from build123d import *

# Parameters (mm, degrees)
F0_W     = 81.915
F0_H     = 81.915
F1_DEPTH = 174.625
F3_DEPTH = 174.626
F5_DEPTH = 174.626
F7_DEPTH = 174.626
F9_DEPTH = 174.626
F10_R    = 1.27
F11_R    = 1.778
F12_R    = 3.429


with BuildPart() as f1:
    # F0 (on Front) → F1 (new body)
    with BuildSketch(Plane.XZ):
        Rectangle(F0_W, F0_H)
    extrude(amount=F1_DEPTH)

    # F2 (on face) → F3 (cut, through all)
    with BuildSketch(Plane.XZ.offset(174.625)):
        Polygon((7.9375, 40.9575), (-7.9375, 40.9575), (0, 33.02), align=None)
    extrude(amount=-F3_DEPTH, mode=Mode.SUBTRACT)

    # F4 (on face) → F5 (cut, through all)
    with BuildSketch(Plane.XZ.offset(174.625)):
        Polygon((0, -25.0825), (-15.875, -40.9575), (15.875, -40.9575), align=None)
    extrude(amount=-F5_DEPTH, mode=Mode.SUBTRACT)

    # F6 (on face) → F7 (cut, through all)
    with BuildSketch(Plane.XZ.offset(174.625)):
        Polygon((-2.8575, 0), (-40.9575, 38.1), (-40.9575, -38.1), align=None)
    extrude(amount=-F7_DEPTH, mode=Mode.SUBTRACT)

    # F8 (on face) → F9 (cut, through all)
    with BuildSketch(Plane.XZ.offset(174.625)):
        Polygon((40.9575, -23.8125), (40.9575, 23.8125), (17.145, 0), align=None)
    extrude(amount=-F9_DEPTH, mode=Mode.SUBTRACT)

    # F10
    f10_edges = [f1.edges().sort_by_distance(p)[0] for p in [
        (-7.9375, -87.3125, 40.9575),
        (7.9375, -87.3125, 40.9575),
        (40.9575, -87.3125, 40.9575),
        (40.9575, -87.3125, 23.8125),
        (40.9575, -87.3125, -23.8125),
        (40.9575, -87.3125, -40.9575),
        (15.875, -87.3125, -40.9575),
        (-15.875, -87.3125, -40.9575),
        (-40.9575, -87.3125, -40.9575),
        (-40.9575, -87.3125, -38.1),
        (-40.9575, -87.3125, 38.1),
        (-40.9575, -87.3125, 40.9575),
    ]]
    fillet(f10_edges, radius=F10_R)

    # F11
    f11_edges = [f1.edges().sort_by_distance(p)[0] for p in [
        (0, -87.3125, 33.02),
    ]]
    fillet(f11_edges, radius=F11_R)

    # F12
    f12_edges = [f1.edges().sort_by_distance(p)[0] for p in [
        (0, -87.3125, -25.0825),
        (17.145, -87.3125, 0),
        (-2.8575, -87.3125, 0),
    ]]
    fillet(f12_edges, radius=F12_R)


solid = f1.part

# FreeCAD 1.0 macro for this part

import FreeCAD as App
import Part
import Sketcher
Q = App.Units.Quantity


def edges_at(feature, points):
    """Names of the edges that pass closest to the given points."""
    edges = feature.Shape.Edges
    near = lambda p: min(range(len(edges)), key=lambda i: edges[i].distToShape(Part.Vertex(*p))[0])
    return sorted({f"Edge{near(p) + 1}" for p in points})


def add_polygon(sketch, points):
    """Adds a closed chain of lines whose ends are joined by coincident constraints."""
    first, n = sketch.GeometryCount, len(points)
    for a, b in zip(points, points[1:] + points[:1]):
        sketch.addGeometry(Part.LineSegment(App.Vector(*a, 0), App.Vector(*b, 0)), False)
    for i in range(n):
        sketch.addConstraint(Sketcher.Constraint("Coincident", first + i, 2, first + (i + 1) % n, 1))

doc = App.newDocument("Part")
body = doc.addObject("PartDesign::Body", "Body")

# Sketch on XZ plane
sketch1 = body.newObject("Sketcher::SketchObject", "Sketch")
sketch1.AttachmentSupport = (doc.getObject("XZ_Plane"), [""])
sketch1.MapMode = "FlatFace"
add_polygon(sketch1, [(-41, 41), (-41, -41), (41, -41), (41, 41)])  # lines 0-3
sketch1.addConstraint([
    Sketcher.Constraint("Vertical", 0),
    Sketcher.Constraint("Horizontal", 1),
    Sketcher.Constraint("Vertical", 2),
    Sketcher.Constraint("Horizontal", 3),
    Sketcher.Constraint("Symmetric", 0, 2, 2, 2, -1, 1),
    Sketcher.Constraint("Equal", 3, 0),
    Sketcher.Constraint("DistanceX", 1, 1, 1, 2, Q("3.225 in")),
])
pad1 = body.newObject("PartDesign::Pad", "Pad")
pad1.Profile = sketch1
pad1.Length = Q("6.875 in")

# Sketch on XZ plane
sketch2 = body.newObject("Sketcher::SketchObject", "Sketch001")
sketch2.AttachmentSupport = (doc.getObject("XZ_Plane"), [""])
sketch2.MapMode = "FlatFace"
sketch2.AttachmentOffset = App.Placement(App.Vector(0, 0, 6.875 * 25.4), App.Rotation())
add_polygon(sketch2, [(8, 41), (-8, 41), (0, 33)])  # lines 0-2
sketch2.addConstraint([
    Sketcher.Constraint("Horizontal", 0),
    Sketcher.Constraint("PointOnObject", 1, 2, -2),
    Sketcher.Constraint("Perpendicular", 1, 2),
    Sketcher.Constraint("Equal", 1, 2),
    Sketcher.Constraint("DistanceY", -1, 1, 1, 2, Q("1.3 in")),
    Sketcher.Constraint("DistanceX", 0, 2, 0, 1, Q("0.625 in")),
])
pocket1 = body.newObject("PartDesign::Pocket", "Pocket")
pocket1.Profile = sketch2
pocket1.Type = "ThroughAll"

# Sketch on XZ plane
sketch3 = body.newObject("Sketcher::SketchObject", "Sketch002")
sketch3.AttachmentSupport = (doc.getObject("XZ_Plane"), [""])
sketch3.MapMode = "FlatFace"
sketch3.AttachmentOffset = App.Placement(App.Vector(0, 0, 6.875 * 25.4), App.Rotation())
add_polygon(sketch3, [(0, -25), (-16, -41), (16, -41)])  # lines 0-2
sketch3.addConstraint([
    Sketcher.Constraint("Horizontal", 1),
    Sketcher.Constraint("PointOnObject", 2, 2, -2),
    Sketcher.Constraint("Perpendicular", 0, 2),
    Sketcher.Constraint("Equal", 0, 2),
    Sketcher.Constraint("DistanceX", 1, 1, 1, 2, Q("1.25 in")),
    Sketcher.Constraint("DistanceY", 0, 2, -1, 1, Q("1.6125 in")),
])
pocket2 = body.newObject("PartDesign::Pocket", "Pocket001")
pocket2.Profile = sketch3
pocket2.Type = "ThroughAll"

# Sketch on XZ plane
sketch4 = body.newObject("Sketcher::SketchObject", "Sketch003")
sketch4.AttachmentSupport = (doc.getObject("XZ_Plane"), [""])
sketch4.MapMode = "FlatFace"
sketch4.AttachmentOffset = App.Placement(App.Vector(0, 0, 6.875 * 25.4), App.Rotation())
add_polygon(sketch4, [(-3, 0), (-41, 38), (-41, -38)])  # lines 0-2
sketch4.addConstraint([
    Sketcher.Constraint("Vertical", 1),
    Sketcher.Constraint("PointOnObject", 2, 2, -1),
    Sketcher.Constraint("Perpendicular", 0, 2),
    Sketcher.Constraint("Equal", 0, 2),
    Sketcher.Constraint("DistanceY", 1, 2, 1, 1, Q("3 in")),
    Sketcher.Constraint("DistanceX", 0, 2, -1, 1, Q("1.6125 in")),
])
pocket3 = body.newObject("PartDesign::Pocket", "Pocket002")
pocket3.Profile = sketch4
pocket3.Type = "ThroughAll"

# Sketch on XZ plane
sketch5 = body.newObject("Sketcher::SketchObject", "Sketch004")
sketch5.AttachmentSupport = (doc.getObject("XZ_Plane"), [""])
sketch5.MapMode = "FlatFace"
sketch5.AttachmentOffset = App.Placement(App.Vector(0, 0, 6.875 * 25.4), App.Rotation())
add_polygon(sketch5, [(41, -24), (41, 24), (17, 0)])  # lines 0-2
sketch5.addConstraint([
    Sketcher.Constraint("Vertical", 0),
    Sketcher.Constraint("PointOnObject", 1, 2, -1),
    Sketcher.Constraint("Perpendicular", 1, 2),
    Sketcher.Constraint("Equal", 1, 2),
    Sketcher.Constraint("DistanceY", 0, 1, 0, 2, Q("1.875 in")),
    Sketcher.Constraint("DistanceX", -1, 1, 1, 2, Q("0.675 in")),
])
pocket4 = body.newObject("PartDesign::Pocket", "Pocket003")
pocket4.Profile = sketch5
pocket4.Type = "ThroughAll"
doc.recompute()

fillet = body.newObject("PartDesign::Fillet", "Fillet")
fillet.Base = (pocket4, edges_at(pocket4, [
    (-7.938, -87.312, 40.958),
    (7.938, -87.312, 40.958),
    (40.958, -87.312, 40.958),
    (40.958, -87.312, 23.812),
    (40.958, -87.312, -23.812),
    (40.958, -87.312, -40.958),
    (15.875, -87.312, -40.958),
    (-15.875, -87.312, -40.958),
    (-40.958, -87.312, -40.958),
    (-40.958, -87.312, -38.1),
    (-40.958, -87.312, 38.1),
    (-40.958, -87.312, 40.958),
]))
fillet.Radius = Q("0.05 in")
doc.recompute()

fillet2 = body.newObject("PartDesign::Fillet", "Fillet001")
fillet2.Base = (fillet, edges_at(fillet, [(0, -87.312, 33.02)]))
fillet2.Radius = Q("0.07 in")
doc.recompute()

fillet3 = body.newObject("PartDesign::Fillet", "Fillet002")
fillet3.Base = (fillet2, edges_at(fillet2, [(0, -87.312, -25.082), (17.145, -87.312, 0), (-2.857, -87.312, 0)]))
fillet3.Radius = Q("0.135 in")

doc.recompute()
